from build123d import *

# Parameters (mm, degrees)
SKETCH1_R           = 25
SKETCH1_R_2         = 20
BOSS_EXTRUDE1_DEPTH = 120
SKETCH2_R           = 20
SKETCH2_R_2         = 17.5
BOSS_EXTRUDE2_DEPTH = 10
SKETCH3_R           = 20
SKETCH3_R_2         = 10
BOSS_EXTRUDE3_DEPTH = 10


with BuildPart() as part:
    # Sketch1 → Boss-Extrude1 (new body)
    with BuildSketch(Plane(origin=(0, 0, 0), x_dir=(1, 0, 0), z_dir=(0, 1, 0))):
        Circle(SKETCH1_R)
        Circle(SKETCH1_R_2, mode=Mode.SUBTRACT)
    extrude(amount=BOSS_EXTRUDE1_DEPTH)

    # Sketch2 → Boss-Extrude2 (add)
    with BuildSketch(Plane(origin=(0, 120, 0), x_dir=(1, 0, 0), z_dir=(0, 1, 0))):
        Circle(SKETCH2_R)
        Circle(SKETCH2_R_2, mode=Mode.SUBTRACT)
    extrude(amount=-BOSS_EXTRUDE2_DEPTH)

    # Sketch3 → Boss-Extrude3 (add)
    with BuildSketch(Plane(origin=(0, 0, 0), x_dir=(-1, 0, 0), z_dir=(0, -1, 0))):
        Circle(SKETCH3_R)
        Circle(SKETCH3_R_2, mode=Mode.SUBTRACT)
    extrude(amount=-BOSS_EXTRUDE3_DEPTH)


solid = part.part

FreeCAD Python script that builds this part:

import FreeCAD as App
import Part
import Sketcher
from FreeCAD import Vector
Q = App.Units.Quantity

doc = App.newDocument("Part")
params = doc.addObject("Spreadsheet::Sheet", "Params")
for row, (alias, value) in enumerate([
    ("sketch1_diameter", "50 mm"),
    ("sketch1_diameter2", "40 mm"),
    ("pad1_length", "120 mm"),
    ("sketch2_diameter", "40 mm"),
    ("sketch2_diameter2", "35 mm"),
    ("pad2_length", "10 mm"),
    ("sketch3_diameter", "40 mm"),
    ("sketch3_diameter2", "20 mm"),
    ("pad3_length", "10 mm"),
], start=1):
    params.set(f"A{row}", alias)
    params.set(f"B{row}", "=" + value)
    params.setAlias(f"B{row}", alias)

body = doc.addObject("PartDesign::Body", "Body")

# Sketch on XZ plane
sketch1 = doc.addObject("Sketcher::SketchObject", "Sketch")
body.addObject(sketch1)
sketch1.AttachmentSupport = (doc.XZ_Plane, [""])
sketch1.MapMode = "FlatFace"
sketch1.addGeometry([
    Part.Circle(Vector(0, 0, 0), Vector(0, 0, 1), 25),
    Part.Circle(Vector(0, 0, 0), Vector(0, 0, 1), 20),
], False)
sketch1.addConstraint([
    Sketcher.Constraint("Coincident", 0, 3, -1, 1),
    Sketcher.Constraint("Coincident", 1, 3, -1, 1),
    Sketcher.Constraint("Diameter", 0, Q("50 mm")),
    Sketcher.Constraint("Diameter", 1, Q("40 mm")),
])
sketch1.setExpression("Constraints[2]", "Params.sketch1_diameter")
sketch1.setExpression("Constraints[3]", "Params.sketch1_diameter2")
pad1 = doc.addObject("PartDesign::Pad", "Pad")
body.addObject(pad1)
pad1.Profile = sketch1
pad1.setExpression("Length", "Params.pad1_length")
pad1.Reversed = True

# Sketch on XZ plane
sketch2 = doc.addObject("Sketcher::SketchObject", "Sketch001")
body.addObject(sketch2)
sketch2.AttachmentSupport = (doc.XZ_Plane, [""])
sketch2.MapMode = "FlatFace"
sketch2.AttachmentOffset = App.Placement(Vector(0, 0, -120), App.Rotation())
sketch2.addGeometry([
    Part.Circle(Vector(0, 0, 0), Vector(0, 0, 1), 20),
    Part.Circle(Vector(0, 0, 0), Vector(0, 0, 1), 17.5),
], False)
sketch2.addConstraint([
    Sketcher.Constraint("Coincident", 0, 3, -1, 1),
    Sketcher.Constraint("Coincident", 1, 3, -1, 1),
    Sketcher.Constraint("Diameter", 0, Q("40 mm")),
    Sketcher.Constraint("Diameter", 1, Q("35 mm")),
])
sketch2.setExpression("Constraints[2]", "Params.sketch2_diameter")
sketch2.setExpression("Constraints[3]", "Params.sketch2_diameter2")
pad2 = doc.addObject("PartDesign::Pad", "Pad001")
body.addObject(pad2)
pad2.Profile = sketch2
pad2.setExpression("Length", "Params.pad2_length")

# Sketch on XZ plane
sketch3 = doc.addObject("Sketcher::SketchObject", "Sketch002")
body.addObject(sketch3)
sketch3.AttachmentSupport = (doc.XZ_Plane, [""])
sketch3.MapMode = "FlatFace"
sketch3.addGeometry([
    Part.Circle(Vector(0, 0, 0), Vector(0, 0, 1), 20),
    Part.Circle(Vector(0, 0, 0), Vector(0, 0, 1), 10),
], False)
sketch3.addConstraint([
    Sketcher.Constraint("Coincident", 0, 3, -1, 1),
    Sketcher.Constraint("Coincident", 1, 3, -1, 1),
    Sketcher.Constraint("Diameter", 0, Q("40 mm")),
    Sketcher.Constraint("Diameter", 1, Q("20 mm")),
])
sketch3.setExpression("Constraints[2]", "Params.sketch3_diameter")
sketch3.setExpression("Constraints[3]", "Params.sketch3_diameter2")
pad3 = doc.addObject("PartDesign::Pad", "Pad002")
body.addObject(pad3)
pad3.Profile = sketch3
pad3.setExpression("Length", "Params.pad3_length")
pad3.Reversed = True

doc.recompute()
